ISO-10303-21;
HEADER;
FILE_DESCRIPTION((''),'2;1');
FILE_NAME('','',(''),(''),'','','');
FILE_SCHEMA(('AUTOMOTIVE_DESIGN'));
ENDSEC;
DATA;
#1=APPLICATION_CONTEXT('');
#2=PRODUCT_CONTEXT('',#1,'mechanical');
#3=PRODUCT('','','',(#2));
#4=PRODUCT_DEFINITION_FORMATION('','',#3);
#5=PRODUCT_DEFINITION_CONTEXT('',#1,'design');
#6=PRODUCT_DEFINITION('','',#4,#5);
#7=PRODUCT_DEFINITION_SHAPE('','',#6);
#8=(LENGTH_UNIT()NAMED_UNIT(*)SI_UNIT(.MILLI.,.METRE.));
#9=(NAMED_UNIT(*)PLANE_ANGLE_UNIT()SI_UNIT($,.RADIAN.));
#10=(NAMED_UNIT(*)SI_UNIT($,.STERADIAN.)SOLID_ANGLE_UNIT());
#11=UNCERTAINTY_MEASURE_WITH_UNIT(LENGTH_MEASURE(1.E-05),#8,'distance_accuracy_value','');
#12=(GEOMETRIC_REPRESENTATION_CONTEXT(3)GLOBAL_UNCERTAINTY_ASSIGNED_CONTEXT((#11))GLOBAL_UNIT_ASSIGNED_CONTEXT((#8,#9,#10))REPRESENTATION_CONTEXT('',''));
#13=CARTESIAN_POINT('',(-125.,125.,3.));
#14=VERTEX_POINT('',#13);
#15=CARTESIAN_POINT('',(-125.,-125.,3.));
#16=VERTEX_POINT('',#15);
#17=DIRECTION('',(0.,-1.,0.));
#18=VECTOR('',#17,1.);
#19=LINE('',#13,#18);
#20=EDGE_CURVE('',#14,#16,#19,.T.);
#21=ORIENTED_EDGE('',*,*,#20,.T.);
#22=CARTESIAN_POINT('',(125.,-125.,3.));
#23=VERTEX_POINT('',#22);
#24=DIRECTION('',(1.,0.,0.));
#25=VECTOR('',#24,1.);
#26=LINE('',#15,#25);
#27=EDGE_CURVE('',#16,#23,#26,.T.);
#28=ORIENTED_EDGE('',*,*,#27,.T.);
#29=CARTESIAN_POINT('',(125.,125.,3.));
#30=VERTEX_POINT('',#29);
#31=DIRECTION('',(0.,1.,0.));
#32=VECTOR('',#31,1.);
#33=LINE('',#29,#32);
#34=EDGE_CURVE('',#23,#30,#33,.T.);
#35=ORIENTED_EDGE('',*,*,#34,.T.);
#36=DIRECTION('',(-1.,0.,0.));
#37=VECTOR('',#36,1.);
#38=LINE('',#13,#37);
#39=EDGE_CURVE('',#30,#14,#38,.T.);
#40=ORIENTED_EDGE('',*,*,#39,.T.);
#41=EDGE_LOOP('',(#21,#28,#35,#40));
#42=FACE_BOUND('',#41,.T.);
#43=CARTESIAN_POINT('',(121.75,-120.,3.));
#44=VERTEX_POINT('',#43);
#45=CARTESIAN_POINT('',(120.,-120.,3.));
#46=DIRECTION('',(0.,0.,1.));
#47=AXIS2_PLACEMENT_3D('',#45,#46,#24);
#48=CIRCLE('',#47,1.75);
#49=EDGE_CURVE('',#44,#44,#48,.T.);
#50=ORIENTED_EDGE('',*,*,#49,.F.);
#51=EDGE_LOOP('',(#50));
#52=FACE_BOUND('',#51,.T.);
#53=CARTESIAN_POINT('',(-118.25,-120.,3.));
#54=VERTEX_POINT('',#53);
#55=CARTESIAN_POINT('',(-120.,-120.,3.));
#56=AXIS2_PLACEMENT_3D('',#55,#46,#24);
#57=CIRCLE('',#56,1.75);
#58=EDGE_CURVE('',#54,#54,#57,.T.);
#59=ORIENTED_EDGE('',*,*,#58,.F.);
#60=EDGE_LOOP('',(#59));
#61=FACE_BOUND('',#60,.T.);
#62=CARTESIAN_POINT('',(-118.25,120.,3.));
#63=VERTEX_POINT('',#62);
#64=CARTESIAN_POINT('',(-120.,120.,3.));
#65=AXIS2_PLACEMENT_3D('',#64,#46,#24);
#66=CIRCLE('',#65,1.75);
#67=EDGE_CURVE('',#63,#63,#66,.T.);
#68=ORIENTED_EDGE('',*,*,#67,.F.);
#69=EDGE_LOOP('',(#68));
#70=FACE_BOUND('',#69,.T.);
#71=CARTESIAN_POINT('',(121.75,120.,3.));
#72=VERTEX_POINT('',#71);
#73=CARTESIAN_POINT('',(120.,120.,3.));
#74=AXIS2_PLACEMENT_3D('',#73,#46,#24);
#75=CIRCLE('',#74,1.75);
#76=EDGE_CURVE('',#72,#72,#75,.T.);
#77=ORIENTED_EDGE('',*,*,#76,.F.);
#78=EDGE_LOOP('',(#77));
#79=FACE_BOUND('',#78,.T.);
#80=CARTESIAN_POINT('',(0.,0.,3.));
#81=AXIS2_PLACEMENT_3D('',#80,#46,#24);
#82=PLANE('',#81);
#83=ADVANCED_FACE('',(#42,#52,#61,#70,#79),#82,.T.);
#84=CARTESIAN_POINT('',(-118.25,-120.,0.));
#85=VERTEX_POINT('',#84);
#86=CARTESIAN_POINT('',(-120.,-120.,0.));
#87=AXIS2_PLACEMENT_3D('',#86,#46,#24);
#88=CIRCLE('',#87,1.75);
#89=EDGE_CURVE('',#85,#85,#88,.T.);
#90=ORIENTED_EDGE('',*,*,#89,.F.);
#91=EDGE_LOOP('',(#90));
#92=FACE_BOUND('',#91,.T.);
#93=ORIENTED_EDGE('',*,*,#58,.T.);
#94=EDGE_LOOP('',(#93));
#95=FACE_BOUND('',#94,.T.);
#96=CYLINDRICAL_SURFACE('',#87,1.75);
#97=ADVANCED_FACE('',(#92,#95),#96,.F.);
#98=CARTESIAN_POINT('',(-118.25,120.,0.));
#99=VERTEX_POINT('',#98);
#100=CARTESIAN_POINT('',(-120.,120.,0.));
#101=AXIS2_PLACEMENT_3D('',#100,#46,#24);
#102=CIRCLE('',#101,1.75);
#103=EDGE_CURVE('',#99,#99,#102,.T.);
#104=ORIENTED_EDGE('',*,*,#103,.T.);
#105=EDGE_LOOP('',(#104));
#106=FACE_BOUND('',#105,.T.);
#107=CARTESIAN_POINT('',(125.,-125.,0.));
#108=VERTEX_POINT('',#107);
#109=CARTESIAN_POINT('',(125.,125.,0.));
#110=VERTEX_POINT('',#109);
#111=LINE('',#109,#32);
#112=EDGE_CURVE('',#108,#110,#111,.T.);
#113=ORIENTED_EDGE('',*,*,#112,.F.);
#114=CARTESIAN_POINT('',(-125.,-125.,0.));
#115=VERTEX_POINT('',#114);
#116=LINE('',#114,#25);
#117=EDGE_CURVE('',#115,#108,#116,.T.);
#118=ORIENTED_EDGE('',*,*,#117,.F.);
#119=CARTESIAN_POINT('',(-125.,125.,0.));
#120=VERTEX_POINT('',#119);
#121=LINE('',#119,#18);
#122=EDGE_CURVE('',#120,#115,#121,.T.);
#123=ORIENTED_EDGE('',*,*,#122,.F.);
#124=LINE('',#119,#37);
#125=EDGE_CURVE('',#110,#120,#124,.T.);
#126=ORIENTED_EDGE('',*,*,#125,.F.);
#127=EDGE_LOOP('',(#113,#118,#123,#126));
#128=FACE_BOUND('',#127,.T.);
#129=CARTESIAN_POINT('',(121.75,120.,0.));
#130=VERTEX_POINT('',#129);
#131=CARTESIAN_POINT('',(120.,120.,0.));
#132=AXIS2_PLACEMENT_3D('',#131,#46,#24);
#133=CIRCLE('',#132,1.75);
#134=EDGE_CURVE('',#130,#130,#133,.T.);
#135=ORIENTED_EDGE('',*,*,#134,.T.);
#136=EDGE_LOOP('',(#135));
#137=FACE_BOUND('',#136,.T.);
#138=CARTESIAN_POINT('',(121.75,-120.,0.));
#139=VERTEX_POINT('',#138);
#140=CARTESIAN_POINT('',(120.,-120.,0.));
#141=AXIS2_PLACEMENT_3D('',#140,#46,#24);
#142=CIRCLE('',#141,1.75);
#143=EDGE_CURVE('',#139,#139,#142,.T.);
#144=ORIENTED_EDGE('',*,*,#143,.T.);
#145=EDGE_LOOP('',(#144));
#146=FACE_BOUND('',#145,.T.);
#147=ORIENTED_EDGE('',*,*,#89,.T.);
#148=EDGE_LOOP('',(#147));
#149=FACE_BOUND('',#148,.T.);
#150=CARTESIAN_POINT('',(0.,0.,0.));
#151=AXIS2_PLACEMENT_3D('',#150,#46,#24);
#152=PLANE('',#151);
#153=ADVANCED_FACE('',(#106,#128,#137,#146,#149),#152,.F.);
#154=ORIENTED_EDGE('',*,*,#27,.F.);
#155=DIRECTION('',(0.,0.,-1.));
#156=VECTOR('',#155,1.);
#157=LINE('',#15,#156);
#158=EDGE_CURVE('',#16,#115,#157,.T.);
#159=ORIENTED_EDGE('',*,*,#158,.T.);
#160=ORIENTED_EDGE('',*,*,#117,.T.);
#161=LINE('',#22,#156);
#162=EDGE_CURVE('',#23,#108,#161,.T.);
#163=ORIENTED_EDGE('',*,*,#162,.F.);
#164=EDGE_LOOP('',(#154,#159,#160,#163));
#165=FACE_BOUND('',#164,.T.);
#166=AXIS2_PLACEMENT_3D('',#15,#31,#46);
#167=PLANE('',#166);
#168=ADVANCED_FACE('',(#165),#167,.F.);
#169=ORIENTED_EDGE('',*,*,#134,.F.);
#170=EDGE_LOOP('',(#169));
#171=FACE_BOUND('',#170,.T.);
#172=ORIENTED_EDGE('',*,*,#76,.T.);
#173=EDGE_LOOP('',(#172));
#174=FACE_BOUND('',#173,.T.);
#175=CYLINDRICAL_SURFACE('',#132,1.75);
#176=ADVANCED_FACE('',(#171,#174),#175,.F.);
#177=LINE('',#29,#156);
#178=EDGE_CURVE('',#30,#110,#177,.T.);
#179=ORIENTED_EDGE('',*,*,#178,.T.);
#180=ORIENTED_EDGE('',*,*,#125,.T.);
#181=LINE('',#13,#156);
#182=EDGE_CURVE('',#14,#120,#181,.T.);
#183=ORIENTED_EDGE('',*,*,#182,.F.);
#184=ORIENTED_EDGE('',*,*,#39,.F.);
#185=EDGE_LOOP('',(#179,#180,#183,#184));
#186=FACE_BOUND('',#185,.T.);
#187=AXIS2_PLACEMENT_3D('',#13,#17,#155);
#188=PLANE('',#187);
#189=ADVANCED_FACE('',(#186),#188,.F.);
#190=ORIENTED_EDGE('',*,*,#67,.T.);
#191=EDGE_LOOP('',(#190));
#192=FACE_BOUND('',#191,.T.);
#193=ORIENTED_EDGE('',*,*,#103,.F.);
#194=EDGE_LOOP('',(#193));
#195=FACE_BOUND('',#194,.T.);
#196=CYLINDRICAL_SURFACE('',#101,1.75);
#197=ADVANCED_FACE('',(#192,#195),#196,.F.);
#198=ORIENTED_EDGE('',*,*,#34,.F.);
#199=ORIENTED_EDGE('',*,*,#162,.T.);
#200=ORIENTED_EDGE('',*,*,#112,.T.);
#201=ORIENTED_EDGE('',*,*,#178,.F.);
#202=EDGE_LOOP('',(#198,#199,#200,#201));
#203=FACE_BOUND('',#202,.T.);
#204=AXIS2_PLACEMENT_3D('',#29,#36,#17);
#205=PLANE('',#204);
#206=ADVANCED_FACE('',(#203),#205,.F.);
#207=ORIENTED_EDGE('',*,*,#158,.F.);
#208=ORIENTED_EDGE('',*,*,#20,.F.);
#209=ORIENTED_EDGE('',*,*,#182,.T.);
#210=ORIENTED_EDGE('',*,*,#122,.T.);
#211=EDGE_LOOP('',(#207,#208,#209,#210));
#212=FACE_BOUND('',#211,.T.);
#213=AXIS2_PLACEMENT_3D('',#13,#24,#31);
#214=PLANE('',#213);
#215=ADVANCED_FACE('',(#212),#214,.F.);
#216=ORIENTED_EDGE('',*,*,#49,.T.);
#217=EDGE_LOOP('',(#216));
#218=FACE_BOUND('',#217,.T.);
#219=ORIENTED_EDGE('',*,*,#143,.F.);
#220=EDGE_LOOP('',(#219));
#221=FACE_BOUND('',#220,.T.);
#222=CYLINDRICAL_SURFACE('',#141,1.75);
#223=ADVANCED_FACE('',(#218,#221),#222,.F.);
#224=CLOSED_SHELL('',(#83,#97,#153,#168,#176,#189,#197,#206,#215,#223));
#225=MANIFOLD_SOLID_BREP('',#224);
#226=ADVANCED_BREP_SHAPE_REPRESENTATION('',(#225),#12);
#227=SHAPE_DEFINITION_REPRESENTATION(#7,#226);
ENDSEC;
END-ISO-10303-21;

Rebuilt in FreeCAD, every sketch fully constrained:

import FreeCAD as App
import Part
import Sketcher
from FreeCAD import Vector


def add_polygon(sketch, points):
    """Adds a closed chain of lines whose ends are joined by coincident constraints."""
    first, n = sketch.GeometryCount, len(points)
    for a, b in zip(points, points[1:] + points[:1]):
        sketch.addGeometry(Part.LineSegment(App.Vector(*a, 0), App.Vector(*b, 0)), False)
    for i in range(n):
        sketch.addConstraint(Sketcher.Constraint("Coincident", first + i, 2, first + (i + 1) % n, 1))

doc = App.newDocument("Part")
body = doc.addObject("PartDesign::Body", "Body")

# Sketch on XY plane
sketch1 = body.newObject("Sketcher::SketchObject", "Sketch")
sketch1.AttachmentSupport = (doc.getObject("XY_Plane"), [""])
sketch1.MapMode = "FlatFace"
add_polygon(sketch1, [(-125, 125), (-125, -125), (125, -125), (125, 125)])  # lines 0-3
sketch1.addConstraint([
    Sketcher.Constraint("Vertical", 0),
    Sketcher.Constraint("Horizontal", 1),
    Sketcher.Constraint("Vertical", 2),
    Sketcher.Constraint("Horizontal", 3),
    Sketcher.Constraint("Symmetric", 0, 2, 2, 2, -1, 1),
    Sketcher.Constraint("Equal", 3, 0),
    Sketcher.Constraint("DistanceX", 1, 1, 1, 2, 250.0),
])
pad1 = body.newObject("PartDesign::Pad", "Pad")
pad1.Profile = sketch1
pad1.Length = 3

# Sketch on XY plane
sketch2 = body.newObject("Sketcher::SketchObject", "Sketch001")
sketch2.AttachmentSupport = (doc.getObject("XY_Plane"), [""])
sketch2.MapMode = "FlatFace"
sketch2.AttachmentOffset = App.Placement(Vector(0, 0, 3), App.Rotation())
sketch2.addGeometry([
    Part.Circle(Vector(-120, 120, 0), Vector(0, 0, 1), 1.75),
    Part.Circle(Vector(120, 120, 0), Vector(0, 0, 1), 1.75),
    Part.Circle(Vector(-120, -120, 0), Vector(0, 0, 1), 1.75),
    Part.Circle(Vector(120, -120, 0), Vector(0, 0, 1), 1.75),
], False)
sketch2.addConstraint([
    Sketcher.Constraint("Equal", 0, 1),
    Sketcher.Constraint("Equal", 1, 2),
    Sketcher.Constraint("Equal", 2, 3),
    Sketcher.Constraint("Symmetric", 1, 3, 2, 3, -1, 1),
    Sketcher.Constraint("Symmetric", 0, 3, 3, 3, -1, 1),
    Sketcher.Constraint("Symmetric", 0, 3, 1, 3, -2),
    Sketcher.Constraint("Diameter", 0, 3.5),
    Sketcher.Constraint("DistanceX", 0, 3, -1, 1, 120.0),
    Sketcher.Constraint("DistanceY", -1, 1, 0, 3, 120.0),
])
pocket1 = body.newObject("PartDesign::Pocket", "Pocket")
pocket1.Profile = sketch2
pocket1.Length = 3

doc.recompute()
